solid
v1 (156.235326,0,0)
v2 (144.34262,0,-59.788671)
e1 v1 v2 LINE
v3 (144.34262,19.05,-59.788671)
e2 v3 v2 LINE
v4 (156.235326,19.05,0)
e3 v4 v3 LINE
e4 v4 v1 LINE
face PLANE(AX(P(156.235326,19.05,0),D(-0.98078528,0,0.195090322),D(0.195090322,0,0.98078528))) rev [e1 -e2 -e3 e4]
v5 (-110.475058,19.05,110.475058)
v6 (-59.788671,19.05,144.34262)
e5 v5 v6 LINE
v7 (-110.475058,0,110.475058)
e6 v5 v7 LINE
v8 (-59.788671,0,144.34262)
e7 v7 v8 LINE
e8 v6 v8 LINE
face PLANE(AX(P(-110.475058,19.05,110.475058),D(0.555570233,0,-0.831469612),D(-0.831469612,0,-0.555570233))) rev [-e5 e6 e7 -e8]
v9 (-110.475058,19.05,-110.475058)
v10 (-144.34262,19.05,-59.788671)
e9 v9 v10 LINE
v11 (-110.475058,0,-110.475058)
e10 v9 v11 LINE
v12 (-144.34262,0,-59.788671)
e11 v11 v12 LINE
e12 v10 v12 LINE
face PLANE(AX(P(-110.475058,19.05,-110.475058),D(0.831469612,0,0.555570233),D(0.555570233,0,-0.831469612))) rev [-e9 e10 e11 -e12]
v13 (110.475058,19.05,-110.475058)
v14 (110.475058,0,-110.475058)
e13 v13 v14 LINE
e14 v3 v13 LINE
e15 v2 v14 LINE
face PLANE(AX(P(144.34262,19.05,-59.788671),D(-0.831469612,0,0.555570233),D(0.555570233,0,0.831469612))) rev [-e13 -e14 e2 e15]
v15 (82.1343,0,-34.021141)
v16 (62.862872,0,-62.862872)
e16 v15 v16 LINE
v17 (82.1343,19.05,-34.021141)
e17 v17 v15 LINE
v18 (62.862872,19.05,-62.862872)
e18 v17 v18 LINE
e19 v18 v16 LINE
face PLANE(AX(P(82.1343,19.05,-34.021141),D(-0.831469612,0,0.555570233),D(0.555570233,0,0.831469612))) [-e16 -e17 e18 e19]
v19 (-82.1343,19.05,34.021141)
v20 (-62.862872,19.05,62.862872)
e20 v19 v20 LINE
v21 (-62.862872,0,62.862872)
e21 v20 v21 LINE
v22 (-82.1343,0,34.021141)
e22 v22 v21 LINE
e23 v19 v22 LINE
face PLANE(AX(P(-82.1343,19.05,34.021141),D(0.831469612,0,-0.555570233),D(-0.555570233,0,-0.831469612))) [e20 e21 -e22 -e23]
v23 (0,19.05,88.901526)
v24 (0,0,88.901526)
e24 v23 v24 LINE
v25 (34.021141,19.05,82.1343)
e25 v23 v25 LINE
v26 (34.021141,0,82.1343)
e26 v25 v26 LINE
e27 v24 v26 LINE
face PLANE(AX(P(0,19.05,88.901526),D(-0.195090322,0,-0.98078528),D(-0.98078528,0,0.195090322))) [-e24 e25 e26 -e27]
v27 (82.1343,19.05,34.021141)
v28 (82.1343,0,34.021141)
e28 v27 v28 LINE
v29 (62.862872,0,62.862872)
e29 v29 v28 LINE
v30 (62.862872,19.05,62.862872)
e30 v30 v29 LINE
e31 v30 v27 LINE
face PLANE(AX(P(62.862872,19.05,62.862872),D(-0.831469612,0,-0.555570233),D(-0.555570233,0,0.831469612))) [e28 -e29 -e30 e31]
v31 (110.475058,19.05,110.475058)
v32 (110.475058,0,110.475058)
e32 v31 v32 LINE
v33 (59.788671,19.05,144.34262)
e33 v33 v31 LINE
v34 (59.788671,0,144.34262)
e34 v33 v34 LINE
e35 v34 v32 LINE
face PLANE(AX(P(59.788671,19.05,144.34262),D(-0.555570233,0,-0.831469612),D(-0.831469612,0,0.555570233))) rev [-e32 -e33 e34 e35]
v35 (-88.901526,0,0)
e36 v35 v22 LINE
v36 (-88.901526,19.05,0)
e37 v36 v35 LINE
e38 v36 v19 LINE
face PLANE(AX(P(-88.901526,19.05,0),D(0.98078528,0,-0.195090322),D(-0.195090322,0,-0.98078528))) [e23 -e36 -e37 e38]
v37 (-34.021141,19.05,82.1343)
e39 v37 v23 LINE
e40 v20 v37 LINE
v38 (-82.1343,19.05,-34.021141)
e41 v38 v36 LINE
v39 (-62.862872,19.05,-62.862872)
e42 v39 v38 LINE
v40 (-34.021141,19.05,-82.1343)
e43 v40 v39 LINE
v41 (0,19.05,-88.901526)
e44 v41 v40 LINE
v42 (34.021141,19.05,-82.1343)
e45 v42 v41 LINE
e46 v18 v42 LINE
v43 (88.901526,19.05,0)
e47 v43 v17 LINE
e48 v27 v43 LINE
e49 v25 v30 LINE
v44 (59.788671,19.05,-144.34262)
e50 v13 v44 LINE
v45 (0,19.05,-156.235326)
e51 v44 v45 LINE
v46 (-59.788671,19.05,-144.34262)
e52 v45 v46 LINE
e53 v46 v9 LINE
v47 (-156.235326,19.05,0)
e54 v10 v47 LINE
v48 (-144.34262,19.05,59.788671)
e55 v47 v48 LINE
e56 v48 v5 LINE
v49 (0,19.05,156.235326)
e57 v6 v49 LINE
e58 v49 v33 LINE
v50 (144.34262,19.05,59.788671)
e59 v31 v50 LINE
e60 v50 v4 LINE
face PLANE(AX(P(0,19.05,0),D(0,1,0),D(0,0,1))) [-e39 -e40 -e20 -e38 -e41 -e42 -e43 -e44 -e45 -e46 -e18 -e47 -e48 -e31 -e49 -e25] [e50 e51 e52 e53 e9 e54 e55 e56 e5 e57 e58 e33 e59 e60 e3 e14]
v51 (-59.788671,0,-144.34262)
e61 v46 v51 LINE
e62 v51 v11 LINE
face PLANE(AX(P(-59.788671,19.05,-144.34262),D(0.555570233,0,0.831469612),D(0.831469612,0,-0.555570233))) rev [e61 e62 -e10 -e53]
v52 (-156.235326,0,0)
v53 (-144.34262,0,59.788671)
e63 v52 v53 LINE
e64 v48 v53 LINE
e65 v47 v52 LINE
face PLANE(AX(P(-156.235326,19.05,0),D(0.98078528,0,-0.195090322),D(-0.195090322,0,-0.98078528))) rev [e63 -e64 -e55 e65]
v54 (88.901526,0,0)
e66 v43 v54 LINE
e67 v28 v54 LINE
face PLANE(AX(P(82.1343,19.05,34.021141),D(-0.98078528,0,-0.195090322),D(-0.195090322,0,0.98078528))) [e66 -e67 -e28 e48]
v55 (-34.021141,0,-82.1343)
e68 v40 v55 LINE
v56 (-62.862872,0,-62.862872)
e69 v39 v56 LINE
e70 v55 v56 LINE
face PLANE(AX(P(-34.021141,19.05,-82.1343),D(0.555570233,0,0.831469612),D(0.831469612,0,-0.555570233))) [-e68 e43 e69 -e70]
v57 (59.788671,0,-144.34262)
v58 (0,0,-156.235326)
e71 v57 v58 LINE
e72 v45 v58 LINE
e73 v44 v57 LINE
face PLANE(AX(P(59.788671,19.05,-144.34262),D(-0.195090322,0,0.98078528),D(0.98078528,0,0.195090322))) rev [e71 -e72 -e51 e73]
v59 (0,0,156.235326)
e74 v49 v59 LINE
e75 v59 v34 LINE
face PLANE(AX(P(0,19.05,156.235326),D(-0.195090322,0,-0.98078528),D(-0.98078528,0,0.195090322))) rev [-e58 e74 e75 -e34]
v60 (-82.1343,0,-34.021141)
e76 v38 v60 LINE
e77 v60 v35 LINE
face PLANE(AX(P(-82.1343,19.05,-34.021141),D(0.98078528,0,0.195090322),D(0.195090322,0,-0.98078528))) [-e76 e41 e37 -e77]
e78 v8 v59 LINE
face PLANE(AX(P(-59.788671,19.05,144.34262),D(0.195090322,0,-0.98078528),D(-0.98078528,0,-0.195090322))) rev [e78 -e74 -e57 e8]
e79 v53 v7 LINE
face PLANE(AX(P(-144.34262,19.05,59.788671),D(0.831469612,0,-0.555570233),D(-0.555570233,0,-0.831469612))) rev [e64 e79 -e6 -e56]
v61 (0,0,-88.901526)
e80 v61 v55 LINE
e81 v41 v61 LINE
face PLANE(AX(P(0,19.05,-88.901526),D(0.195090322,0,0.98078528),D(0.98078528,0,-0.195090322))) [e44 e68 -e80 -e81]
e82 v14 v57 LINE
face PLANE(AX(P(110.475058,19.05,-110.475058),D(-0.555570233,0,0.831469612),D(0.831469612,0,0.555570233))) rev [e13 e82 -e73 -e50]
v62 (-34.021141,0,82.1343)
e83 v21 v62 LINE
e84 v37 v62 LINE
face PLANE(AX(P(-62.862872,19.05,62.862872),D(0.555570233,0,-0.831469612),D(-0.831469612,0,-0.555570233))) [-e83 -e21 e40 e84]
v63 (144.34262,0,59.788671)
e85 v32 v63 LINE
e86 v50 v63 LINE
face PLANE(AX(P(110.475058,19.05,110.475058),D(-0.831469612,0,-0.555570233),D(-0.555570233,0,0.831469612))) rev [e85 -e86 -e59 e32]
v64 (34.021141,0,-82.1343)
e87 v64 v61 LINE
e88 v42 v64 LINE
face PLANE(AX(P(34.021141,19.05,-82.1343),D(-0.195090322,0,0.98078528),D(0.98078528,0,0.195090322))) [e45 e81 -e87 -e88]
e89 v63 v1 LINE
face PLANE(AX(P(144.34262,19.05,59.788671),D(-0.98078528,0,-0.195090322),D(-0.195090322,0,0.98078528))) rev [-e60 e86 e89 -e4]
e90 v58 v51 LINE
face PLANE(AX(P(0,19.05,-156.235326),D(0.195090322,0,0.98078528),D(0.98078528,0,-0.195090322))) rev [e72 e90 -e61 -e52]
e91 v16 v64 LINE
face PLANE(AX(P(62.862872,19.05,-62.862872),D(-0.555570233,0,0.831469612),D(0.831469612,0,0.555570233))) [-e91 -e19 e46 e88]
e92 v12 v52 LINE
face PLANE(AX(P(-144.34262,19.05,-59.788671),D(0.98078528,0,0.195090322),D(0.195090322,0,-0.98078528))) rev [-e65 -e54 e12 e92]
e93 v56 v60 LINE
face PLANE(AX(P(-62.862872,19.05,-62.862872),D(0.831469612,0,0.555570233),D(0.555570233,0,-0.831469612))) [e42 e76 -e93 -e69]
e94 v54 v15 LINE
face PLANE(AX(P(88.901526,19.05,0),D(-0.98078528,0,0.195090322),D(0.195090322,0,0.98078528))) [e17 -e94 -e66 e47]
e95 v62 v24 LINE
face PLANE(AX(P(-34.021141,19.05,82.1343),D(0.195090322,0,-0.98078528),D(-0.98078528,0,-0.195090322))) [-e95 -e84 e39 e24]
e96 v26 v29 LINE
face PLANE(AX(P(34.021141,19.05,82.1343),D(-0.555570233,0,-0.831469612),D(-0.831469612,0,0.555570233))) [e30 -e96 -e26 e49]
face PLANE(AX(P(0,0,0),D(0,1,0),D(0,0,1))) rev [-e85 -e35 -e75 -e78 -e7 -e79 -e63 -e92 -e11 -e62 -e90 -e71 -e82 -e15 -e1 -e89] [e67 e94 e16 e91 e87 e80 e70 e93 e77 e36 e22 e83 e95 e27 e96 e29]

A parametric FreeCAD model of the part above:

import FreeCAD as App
import Part
import Sketcher
from FreeCAD import Vector
Q = App.Units.Quantity


def add_polygon(sketch, points):
    """Adds a closed chain of lines whose ends are joined by coincident constraints."""
    first, n = sketch.GeometryCount, len(points)
    for a, b in zip(points, points[1:] + points[:1]):
        sketch.addGeometry(Part.LineSegment(App.Vector(*a, 0), App.Vector(*b, 0)), False)
    for i in range(n):
        sketch.addConstraint(Sketcher.Constraint("Coincident", first + i, 2, first + (i + 1) % n, 1))

doc = App.newDocument("Part")
body = doc.addObject("PartDesign::Body", "Body")

# Sketch on XZ plane
sketch1 = body.newObject("Sketcher::SketchObject", "Sketch")
sketch1.AttachmentSupport = (doc.getObject("XZ_Plane"), [""])
sketch1.MapMode = "FlatFace"
add_polygon(sketch1, [(156, 0), (144, -60), (110, -110), (60, -144), (0, -156), (-60, -144), (-110, -110), (-144, -60), (-156, 0), (-144, 60), (-110, 110), (-60, 144), (0, 156), (60, 144), (110, 110), (144, 60)])  # lines 0-15
add_polygon(sketch1, [(82, -34), (89, 0), (82, 34), (63, 63), (34, 82), (0, 89), (-34, 82), (-63, 63), (-82, 34), (-89, 0), (-82, -34), (-63, -63), (-34, -82), (0, -89), (34, -82), (63, -63)])  # lines 16-31
sketch1.addConstraint([
    Sketcher.Constraint("Symmetric", 0, 2, 8, 2, -1, 1),
    Sketcher.Constraint("Symmetric", 1, 2, 9, 2, -1, 1),
    Sketcher.Constraint("Symmetric", 2, 2, 10, 2, -1, 1),
    Sketcher.Constraint("Symmetric", 3, 2, 11, 2, -1, 1),
    Sketcher.Constraint("Symmetric", 4, 2, 12, 2, -1, 1),
    Sketcher.Constraint("Symmetric", 5, 2, 13, 2, -1, 1),
    Sketcher.Constraint("Symmetric", 6, 2, 14, 2, -1, 1),
    Sketcher.Constraint("Symmetric", 7, 2, 15, 2, -1, 1),
    Sketcher.Constraint("Symmetric", 16, 2, 24, 2, -1, 1),
    Sketcher.Constraint("Symmetric", 17, 2, 25, 2, -1, 1),
    Sketcher.Constraint("Symmetric", 18, 2, 26, 2, -1, 1),
    Sketcher.Constraint("Symmetric", 19, 2, 27, 2, -1, 1),
    Sketcher.Constraint("Symmetric", 20, 2, 28, 2, -1, 1),
    Sketcher.Constraint("Symmetric", 21, 2, 29, 2, -1, 1),
    Sketcher.Constraint("Symmetric", 22, 2, 30, 2, -1, 1),
    Sketcher.Constraint("Symmetric", 23, 2, 31, 2, -1, 1),
    Sketcher.Constraint("Symmetric", 2, 2, 4, 2, -2),
    Sketcher.Constraint("Symmetric", 1, 2, 5, 2, -2),
    Sketcher.Constraint("Symmetric", 0, 2, 6, 2, -2),
    Sketcher.Constraint("Symmetric", 19, 2, 21, 2, -2),
    Sketcher.Constraint("Symmetric", 18, 2, 22, 2, -2),
    Sketcher.Constraint("Symmetric", 17, 2, 23, 2, -2),
    Sketcher.Constraint("PointOnObject", 3, 2, -2),
    Sketcher.Constraint("PointOnObject", 7, 2, -1),
    Sketcher.Constraint("PointOnObject", 16, 2, -1),
    Sketcher.Constraint("PointOnObject", 20, 2, -2),
    Sketcher.Constraint("Perpendicular", 0, 4),
    Sketcher.Constraint("Perpendicular", 1, 5),
    Sketcher.Constraint("Perpendicular", 12, 16),
    Sketcher.Constraint("Parallel", 14, 18),
    Sketcher.Constraint("Parallel", 13, 19),
    Sketcher.Constraint("Perpendicular", 16, 20),
    Sketcher.Constraint("Equal", 0, 1),
    Sketcher.Constraint("Equal", 1, 2),
    Sketcher.Constraint("Equal", 2, 3),
    Sketcher.Constraint("Equal", 17, 18),
    Sketcher.Constraint("Equal", 18, 19),
    Sketcher.Constraint("Equal", 19, 20),
    Sketcher.Constraint("Distance", 0, Q("2.4 in")),
    Sketcher.Constraint("Angle", 0, Q("-101.25 deg")),
    Sketcher.Constraint("Angle", 1, Q("-123.75 deg")),
    Sketcher.Constraint("DistanceX", -1, 1, 17, 2, 82.1343),
])
pad1 = body.newObject("PartDesign::Pad", "Pad")
pad1.Profile = sketch1
pad1.Length = Q("0.75 in")
pad1.Reversed = True

doc.recompute()
